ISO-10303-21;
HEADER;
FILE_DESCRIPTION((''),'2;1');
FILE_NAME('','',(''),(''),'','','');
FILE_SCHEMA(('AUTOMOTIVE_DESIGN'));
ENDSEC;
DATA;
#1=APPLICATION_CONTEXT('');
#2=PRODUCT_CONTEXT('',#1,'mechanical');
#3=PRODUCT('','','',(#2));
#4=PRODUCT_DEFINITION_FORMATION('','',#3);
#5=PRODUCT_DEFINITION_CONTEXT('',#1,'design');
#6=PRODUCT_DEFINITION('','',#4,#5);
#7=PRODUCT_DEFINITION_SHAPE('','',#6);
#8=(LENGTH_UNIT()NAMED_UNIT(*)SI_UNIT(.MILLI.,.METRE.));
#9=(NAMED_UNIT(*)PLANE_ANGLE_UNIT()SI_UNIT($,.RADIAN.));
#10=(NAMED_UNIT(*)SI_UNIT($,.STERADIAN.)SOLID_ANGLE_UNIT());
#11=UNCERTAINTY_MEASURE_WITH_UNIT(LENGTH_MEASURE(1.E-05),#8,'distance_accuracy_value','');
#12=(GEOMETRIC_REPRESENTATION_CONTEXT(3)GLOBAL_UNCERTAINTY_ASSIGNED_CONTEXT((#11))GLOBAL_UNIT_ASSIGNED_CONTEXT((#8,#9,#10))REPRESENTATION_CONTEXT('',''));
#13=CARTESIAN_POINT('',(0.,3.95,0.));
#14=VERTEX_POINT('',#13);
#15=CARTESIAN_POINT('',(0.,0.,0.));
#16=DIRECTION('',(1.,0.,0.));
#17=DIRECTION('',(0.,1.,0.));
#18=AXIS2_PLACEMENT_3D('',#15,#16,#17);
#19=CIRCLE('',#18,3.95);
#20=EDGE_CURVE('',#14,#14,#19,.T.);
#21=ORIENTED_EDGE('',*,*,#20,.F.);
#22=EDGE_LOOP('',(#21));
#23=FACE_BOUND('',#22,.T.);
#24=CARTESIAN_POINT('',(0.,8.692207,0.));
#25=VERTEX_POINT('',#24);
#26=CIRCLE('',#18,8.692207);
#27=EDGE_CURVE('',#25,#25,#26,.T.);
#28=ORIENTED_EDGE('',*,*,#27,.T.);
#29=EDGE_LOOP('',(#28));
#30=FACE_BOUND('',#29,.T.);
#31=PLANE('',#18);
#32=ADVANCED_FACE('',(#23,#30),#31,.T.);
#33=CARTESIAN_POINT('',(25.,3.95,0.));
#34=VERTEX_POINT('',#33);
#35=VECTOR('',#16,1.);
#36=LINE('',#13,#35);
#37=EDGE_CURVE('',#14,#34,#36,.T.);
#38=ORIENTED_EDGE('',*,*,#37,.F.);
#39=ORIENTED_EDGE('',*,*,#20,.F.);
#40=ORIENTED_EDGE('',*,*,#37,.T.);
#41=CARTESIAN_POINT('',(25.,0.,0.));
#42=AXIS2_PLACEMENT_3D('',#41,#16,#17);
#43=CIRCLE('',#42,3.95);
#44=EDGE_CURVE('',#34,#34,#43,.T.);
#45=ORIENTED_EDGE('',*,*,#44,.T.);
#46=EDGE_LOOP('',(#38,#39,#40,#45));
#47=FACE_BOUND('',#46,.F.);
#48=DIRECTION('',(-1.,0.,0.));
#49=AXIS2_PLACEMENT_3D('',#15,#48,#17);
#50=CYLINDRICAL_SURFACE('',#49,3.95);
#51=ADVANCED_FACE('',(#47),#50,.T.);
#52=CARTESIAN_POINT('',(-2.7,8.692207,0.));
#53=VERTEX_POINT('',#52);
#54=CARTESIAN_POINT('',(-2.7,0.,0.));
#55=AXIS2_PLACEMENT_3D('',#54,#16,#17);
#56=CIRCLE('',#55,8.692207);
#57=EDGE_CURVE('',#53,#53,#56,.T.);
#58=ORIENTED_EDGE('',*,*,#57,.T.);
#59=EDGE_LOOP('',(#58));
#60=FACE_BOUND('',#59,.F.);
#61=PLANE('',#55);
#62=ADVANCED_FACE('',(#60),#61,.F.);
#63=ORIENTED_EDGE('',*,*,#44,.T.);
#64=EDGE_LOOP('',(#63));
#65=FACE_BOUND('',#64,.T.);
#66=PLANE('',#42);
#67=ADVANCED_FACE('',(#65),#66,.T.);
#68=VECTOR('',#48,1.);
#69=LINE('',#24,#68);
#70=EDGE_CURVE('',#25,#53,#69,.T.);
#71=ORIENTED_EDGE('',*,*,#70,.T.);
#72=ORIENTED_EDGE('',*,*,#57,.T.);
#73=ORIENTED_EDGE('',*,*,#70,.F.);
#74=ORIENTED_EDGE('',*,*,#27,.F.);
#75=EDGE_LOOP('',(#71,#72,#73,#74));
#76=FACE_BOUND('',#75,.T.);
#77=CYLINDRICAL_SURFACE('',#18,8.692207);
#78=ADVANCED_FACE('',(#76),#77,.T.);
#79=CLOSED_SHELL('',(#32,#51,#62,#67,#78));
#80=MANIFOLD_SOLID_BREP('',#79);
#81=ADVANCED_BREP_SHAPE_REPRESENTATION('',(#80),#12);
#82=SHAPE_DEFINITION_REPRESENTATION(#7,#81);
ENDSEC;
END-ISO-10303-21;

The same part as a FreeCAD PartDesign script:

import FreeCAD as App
import Part
import Sketcher
from FreeCAD import Vector
Q = App.Units.Quantity

doc = App.newDocument("Part")
body = doc.addObject("PartDesign::Body", "Body")

# Sketch on YZ plane
sketch1 = body.newObject("Sketcher::SketchObject", "Sketch")
sketch1.AttachmentSupport = (doc.getObject("YZ_Plane"), [""])
sketch1.MapMode = "FlatFace"
sketch1.addGeometry(Part.Circle(Vector(0, 0, 0), Vector(0, 0, 1), 4), False)
sketch1.addConstraint(Sketcher.Constraint("Coincident", 0, 3, -1, 1))
sketch1.addConstraint(Sketcher.Constraint("Diameter", 0, Q("7.9 mm")))
pad1 = body.newObject("PartDesign::Pad", "Pad")
pad1.Profile = sketch1
pad1.Length = 25

# Sketch on YZ plane
sketch2 = body.newObject("Sketcher::SketchObject", "Sketch001")
sketch2.AttachmentSupport = (doc.getObject("YZ_Plane"), [""])
sketch2.MapMode = "FlatFace"
sketch2.addGeometry(Part.Circle(Vector(0, 0, 0), Vector(0, 0, 1), 9), False)
sketch2.addConstraint(Sketcher.Constraint("Coincident", 0, 3, -1, 1))
sketch2.addConstraint(Sketcher.Constraint("Diameter", 0, Q("17.384414 mm")))
pad2 = body.newObject("PartDesign::Pad", "Pad001")
pad2.Profile = sketch2
pad2.Length = 2.7
pad2.Reversed = True

doc.recompute()
